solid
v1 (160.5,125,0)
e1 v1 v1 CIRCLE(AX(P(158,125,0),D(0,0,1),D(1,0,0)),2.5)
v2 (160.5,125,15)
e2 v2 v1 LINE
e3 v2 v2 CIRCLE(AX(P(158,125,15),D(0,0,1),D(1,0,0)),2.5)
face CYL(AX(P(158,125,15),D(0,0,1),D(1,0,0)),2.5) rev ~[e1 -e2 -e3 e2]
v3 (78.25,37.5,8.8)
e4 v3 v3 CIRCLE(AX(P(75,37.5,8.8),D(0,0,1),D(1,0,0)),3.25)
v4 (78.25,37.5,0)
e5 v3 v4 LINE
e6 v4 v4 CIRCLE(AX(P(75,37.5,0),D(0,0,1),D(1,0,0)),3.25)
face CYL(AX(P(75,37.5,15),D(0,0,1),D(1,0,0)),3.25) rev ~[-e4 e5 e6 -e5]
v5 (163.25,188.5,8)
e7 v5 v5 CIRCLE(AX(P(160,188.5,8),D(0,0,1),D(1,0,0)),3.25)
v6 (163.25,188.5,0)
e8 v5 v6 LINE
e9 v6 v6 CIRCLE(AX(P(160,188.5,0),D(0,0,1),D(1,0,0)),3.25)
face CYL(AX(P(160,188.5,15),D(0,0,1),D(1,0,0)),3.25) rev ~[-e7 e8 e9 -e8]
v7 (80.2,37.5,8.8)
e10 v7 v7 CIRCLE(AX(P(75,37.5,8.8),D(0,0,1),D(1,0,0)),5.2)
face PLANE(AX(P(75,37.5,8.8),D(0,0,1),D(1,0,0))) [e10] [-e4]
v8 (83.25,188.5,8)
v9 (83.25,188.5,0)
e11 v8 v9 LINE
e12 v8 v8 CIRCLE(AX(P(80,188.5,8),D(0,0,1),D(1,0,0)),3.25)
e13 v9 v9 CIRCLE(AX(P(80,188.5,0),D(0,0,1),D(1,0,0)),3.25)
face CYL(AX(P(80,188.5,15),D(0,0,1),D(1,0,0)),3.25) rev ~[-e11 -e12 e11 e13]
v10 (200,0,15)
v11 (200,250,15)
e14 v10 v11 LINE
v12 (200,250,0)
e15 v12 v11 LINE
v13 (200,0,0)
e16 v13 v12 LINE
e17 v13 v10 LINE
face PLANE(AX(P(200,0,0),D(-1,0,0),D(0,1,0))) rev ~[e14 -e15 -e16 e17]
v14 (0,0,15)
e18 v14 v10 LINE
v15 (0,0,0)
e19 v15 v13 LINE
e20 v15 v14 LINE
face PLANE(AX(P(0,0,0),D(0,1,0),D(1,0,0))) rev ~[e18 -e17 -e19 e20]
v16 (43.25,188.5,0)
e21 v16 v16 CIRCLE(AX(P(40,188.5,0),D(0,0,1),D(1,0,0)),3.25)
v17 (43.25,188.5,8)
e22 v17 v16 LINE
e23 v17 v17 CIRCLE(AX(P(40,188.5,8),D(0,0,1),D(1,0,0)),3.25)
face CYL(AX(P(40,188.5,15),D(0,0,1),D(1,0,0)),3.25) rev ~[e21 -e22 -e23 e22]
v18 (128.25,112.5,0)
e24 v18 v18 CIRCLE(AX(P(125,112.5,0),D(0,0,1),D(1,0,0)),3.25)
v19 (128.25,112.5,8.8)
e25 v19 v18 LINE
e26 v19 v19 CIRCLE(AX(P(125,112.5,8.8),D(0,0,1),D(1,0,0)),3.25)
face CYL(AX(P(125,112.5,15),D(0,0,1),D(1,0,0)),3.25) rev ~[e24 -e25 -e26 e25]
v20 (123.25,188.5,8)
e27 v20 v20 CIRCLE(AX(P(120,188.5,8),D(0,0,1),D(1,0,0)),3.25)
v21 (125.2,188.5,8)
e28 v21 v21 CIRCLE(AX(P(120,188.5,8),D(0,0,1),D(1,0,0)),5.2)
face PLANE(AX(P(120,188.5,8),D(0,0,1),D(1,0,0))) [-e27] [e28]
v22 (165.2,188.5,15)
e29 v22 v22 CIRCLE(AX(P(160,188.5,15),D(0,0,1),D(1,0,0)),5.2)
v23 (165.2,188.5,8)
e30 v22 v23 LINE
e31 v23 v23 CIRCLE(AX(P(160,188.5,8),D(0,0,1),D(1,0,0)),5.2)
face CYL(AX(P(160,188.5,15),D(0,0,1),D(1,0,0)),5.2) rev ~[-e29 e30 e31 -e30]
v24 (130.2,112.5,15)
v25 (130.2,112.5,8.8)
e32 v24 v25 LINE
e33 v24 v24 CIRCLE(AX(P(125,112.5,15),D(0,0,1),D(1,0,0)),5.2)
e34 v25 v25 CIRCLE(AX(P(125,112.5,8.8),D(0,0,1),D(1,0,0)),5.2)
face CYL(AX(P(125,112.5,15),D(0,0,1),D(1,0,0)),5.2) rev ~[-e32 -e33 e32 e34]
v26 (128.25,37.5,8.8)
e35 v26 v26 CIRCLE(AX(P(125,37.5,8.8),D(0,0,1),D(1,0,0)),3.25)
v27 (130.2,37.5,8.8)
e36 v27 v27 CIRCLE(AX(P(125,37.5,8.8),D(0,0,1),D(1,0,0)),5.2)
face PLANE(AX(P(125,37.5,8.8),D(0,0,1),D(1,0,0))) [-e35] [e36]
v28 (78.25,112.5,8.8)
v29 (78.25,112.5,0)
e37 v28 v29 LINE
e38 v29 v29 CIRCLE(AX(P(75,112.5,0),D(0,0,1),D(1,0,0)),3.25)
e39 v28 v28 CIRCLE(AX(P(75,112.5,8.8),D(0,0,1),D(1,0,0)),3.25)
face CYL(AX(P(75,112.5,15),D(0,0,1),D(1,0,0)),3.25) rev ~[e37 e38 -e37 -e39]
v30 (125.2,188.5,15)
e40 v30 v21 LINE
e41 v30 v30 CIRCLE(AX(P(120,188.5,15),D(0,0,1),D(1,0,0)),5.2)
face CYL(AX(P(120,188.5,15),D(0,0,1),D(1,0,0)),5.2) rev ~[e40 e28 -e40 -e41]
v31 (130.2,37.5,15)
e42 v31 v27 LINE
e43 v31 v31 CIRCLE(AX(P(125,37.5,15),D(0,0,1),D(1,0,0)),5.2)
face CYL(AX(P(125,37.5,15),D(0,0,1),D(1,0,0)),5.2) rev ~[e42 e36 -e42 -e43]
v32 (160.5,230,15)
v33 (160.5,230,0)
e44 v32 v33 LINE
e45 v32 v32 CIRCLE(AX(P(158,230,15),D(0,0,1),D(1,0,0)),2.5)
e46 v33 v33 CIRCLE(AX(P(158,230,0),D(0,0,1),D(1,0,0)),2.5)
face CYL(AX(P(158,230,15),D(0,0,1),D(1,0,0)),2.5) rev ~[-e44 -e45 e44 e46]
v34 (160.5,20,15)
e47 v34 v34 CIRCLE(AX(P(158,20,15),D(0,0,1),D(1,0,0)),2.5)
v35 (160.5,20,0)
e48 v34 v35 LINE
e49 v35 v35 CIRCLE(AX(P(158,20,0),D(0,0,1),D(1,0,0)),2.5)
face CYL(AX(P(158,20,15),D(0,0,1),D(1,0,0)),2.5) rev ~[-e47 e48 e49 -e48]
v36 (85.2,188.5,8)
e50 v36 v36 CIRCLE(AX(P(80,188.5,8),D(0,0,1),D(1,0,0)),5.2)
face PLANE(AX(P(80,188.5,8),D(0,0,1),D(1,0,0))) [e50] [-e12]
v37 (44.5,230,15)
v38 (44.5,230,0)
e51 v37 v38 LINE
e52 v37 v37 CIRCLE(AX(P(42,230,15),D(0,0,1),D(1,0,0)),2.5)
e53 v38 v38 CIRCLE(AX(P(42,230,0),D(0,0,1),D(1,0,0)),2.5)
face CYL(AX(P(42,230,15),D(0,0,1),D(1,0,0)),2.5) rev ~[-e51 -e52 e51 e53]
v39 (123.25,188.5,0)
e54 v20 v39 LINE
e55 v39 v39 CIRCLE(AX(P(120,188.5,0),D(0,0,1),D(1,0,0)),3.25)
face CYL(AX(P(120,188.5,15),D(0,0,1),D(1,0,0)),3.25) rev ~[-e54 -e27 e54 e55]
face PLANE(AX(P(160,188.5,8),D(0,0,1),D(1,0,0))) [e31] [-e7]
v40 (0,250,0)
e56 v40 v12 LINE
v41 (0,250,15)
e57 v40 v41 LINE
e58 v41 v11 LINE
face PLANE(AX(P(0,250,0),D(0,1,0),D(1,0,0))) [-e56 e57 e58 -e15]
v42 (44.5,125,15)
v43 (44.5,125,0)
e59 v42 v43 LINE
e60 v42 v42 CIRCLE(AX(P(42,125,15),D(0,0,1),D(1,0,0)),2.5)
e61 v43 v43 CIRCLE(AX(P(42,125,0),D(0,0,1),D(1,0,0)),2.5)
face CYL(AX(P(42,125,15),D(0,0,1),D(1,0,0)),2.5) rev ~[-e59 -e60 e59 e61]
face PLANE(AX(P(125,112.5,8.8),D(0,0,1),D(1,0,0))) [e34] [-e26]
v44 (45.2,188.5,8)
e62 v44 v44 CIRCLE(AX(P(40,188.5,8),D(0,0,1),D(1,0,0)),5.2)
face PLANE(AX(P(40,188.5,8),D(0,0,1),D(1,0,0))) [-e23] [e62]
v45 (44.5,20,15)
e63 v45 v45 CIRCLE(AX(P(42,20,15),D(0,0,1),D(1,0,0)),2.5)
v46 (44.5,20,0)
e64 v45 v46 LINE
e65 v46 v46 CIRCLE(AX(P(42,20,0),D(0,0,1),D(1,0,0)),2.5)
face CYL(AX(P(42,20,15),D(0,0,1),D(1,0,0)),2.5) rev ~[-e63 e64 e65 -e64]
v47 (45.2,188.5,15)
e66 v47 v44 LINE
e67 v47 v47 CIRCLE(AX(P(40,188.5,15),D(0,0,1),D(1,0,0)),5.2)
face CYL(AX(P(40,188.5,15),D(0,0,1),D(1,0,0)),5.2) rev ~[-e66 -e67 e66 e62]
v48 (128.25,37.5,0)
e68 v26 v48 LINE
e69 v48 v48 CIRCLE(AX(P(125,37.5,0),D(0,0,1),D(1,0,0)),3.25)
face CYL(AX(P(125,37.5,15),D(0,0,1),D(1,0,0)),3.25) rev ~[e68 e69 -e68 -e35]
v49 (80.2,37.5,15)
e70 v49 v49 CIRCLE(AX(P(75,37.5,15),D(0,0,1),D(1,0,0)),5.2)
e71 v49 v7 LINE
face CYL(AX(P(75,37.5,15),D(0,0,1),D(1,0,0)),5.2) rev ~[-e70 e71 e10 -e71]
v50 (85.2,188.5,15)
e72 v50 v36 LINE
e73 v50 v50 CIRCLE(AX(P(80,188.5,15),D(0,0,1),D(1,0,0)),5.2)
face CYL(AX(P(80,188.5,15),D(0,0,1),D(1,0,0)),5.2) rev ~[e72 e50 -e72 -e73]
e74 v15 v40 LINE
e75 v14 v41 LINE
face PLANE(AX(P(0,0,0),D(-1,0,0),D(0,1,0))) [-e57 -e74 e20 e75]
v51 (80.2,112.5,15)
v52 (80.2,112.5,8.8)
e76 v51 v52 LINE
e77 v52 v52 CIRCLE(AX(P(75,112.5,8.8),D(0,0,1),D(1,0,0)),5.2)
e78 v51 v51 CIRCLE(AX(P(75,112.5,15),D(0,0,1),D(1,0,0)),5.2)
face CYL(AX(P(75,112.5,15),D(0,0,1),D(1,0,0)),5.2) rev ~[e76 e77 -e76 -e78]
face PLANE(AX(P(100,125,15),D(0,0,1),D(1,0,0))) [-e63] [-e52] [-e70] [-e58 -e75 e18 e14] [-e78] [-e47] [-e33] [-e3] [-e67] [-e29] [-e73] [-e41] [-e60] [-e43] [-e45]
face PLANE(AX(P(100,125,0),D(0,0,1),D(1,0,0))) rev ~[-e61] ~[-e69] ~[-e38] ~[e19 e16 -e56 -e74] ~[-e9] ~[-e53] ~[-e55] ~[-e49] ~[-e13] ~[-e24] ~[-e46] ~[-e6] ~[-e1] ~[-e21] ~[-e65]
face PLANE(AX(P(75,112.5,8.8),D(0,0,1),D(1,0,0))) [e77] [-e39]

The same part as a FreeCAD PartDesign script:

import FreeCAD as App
import Part
import Sketcher

V = App.Vector


def add_polygon(sketch, points):
    """Adds a closed chain of lines whose ends are joined by coincident constraints."""
    first, n = sketch.GeometryCount, len(points)
    for a, b in zip(points, points[1:] + points[:1]):
        sketch.addGeometry(Part.LineSegment(App.Vector(*a, 0), App.Vector(*b, 0)), False)
    for i in range(n):
        sketch.addConstraint(Sketcher.Constraint("Coincident", first + i, 2, first + (i + 1) % n, 1))

doc = App.newDocument("Part")
body = doc.addObject("PartDesign::Body", "Body")

sketch1 = doc.addObject("Sketcher::SketchObject", "Sketch")
body.addObject(sketch1)
sketch1.AttachmentSupport = (doc.XY_Plane, [""])
sketch1.MapMode = "FlatFace"
add_polygon(sketch1, [(0, 250), (0, 0), (200, 0), (200, 250)])
sketch1.addConstraint([
    Sketcher.Constraint("Vertical", 0),
    Sketcher.Constraint("Horizontal", 1),
    Sketcher.Constraint("Vertical", 2),
    Sketcher.Constraint("Horizontal", 3),
    Sketcher.Constraint("Coincident", 0, 2, -1, 1),
    Sketcher.Constraint("DistanceX", 1, 1, 1, 2, 200.0),
    Sketcher.Constraint("DistanceY", 0, 2, 0, 1, 250.0),
])
pad1 = doc.addObject("PartDesign::Pad", "Pad")
body.addObject(pad1)
pad1.Profile = sketch1
pad1.Length = 15

sketch2 = doc.addObject("Sketcher::SketchObject", "Sketch001")
body.addObject(sketch2)
sketch2.AttachmentSupport = (doc.XY_Plane, [""])
sketch2.MapMode = "FlatFace"
sketch2.AttachmentOffset = App.Placement(V(0, 0, 15), App.Rotation())
sketch2.addGeometry([
    Part.Circle(V(125, 37.5, 0), V(0, 0, 1), 3.2),
    Part.Circle(V(75, 37.5, 0), V(0, 0, 1), 3.2),
    Part.Circle(V(125, 112.5, 0), V(0, 0, 1), 3.2),
    Part.Circle(V(75, 112.5, 0), V(0, 0, 1), 3.2),
], False)
sketch2.addConstraint([
    Sketcher.Constraint("Equal", 0, 1),
    Sketcher.Constraint("Equal", 1, 2),
    Sketcher.Constraint("Equal", 2, 3),
    Sketcher.Constraint("Horizontal", 0, 3, 1, 3),
    Sketcher.Constraint("Horizontal", 2, 3, 3, 3),
    Sketcher.Constraint("Vertical", 0, 3, 2, 3),
    Sketcher.Constraint("Vertical", 1, 3, 3, 3),
    Sketcher.Constraint("Diameter", 0, 6.5),
    Sketcher.Constraint("DistanceX", -1, 1, 0, 3, 125.0),
    Sketcher.Constraint("DistanceX", -1, 1, 1, 3, 75.0),
    Sketcher.Constraint("DistanceY", 0, 3, 2, 3, 75.0),
    Sketcher.Constraint("DistanceY", -1, 1, 0, 3, 37.5),
])
pocket1 = doc.addObject("PartDesign::Pocket", "Pocket")
body.addObject(pocket1)
pocket1.Profile = sketch2
pocket1.Length = 15

sketch3 = doc.addObject("Sketcher::SketchObject", "Sketch002")
body.addObject(sketch3)
sketch3.AttachmentSupport = (doc.XY_Plane, [""])
sketch3.MapMode = "FlatFace"
sketch3.AttachmentOffset = App.Placement(V(0, 0, 15), App.Rotation())
sketch3.addGeometry([
    Part.Circle(V(75, 112, 0), V(0, 0, 1), 5),
    Part.Circle(V(125, 112, 0), V(0, 0, 1), 5),
    Part.Circle(V(75, 38, 0), V(0, 0, 1), 5),
    Part.Circle(V(125, 38, 0), V(0, 0, 1), 5),
], False)
sketch3.addConstraint([
    Sketcher.Constraint("Equal", 0, 1),
    Sketcher.Constraint("Equal", 1, 2),
    Sketcher.Constraint("Equal", 2, 3),
    Sketcher.Constraint("Horizontal", 0, 3, 1, 3),
    Sketcher.Constraint("Horizontal", 2, 3, 3, 3),
    Sketcher.Constraint("Vertical", 0, 3, 2, 3),
    Sketcher.Constraint("Vertical", 1, 3, 3, 3),
    Sketcher.Constraint("Diameter", 0, 10.4),
    Sketcher.Constraint("DistanceX", -1, 1, 0, 3, 75.0),
    Sketcher.Constraint("DistanceX", -1, 1, 1, 3, 125.0),
    Sketcher.Constraint("DistanceY", 2, 3, 0, 3, 75.0),
    Sketcher.Constraint("DistanceY", -1, 1, 0, 3, 112.5),
])
pocket2 = doc.addObject("PartDesign::Pocket", "Pocket001")
body.addObject(pocket2)
pocket2.Profile = sketch3
pocket2.Length = 6.2

sketch4 = doc.addObject("Sketcher::SketchObject", "Sketch003")
body.addObject(sketch4)
sketch4.AttachmentSupport = (doc.XY_Plane, [""])
sketch4.MapMode = "FlatFace"
sketch4.AttachmentOffset = App.Placement(V(0, 0, 15), App.Rotation())
sketch4.addGeometry([
    Part.Circle(V(42, 230, 0), V(0, 0, 1), 2.5),
    Part.Circle(V(42, 125, 0), V(0, 0, 1), 2.5),
    Part.Circle(V(42, 20, 0), V(0, 0, 1), 2.5),
    Part.Circle(V(158, 230, 0), V(0, 0, 1), 2.5),
    Part.Circle(V(158, 125, 0), V(0, 0, 1), 2.5),
    Part.Circle(V(158, 20, 0), V(0, 0, 1), 2.5),
], False)
sketch4.addConstraint([
    Sketcher.Constraint("Equal", 0, 1),
    Sketcher.Constraint("Equal", 1, 2),
    Sketcher.Constraint("Equal", 2, 3),
    Sketcher.Constraint("Equal", 3, 4),
    Sketcher.Constraint("Equal", 4, 5),
    Sketcher.Constraint("Horizontal", 0, 3, 3, 3),
    Sketcher.Constraint("Horizontal", 1, 3, 4, 3),
    Sketcher.Constraint("Horizontal", 2, 3, 5, 3),
    Sketcher.Constraint("Vertical", 0, 3, 1, 3),
    Sketcher.Constraint("Vertical", 1, 3, 2, 3),
    Sketcher.Constraint("Vertical", 3, 3, 4, 3),
    Sketcher.Constraint("Vertical", 4, 3, 5, 3),
    Sketcher.Constraint("Diameter", 0, 5.0),
    Sketcher.Constraint("DistanceX", -1, 1, 0, 3, 42.0),
    Sketcher.Constraint("DistanceY", -1, 1, 0, 3, 230.0),
    Sketcher.Constraint("DistanceY", -1, 1, 1, 3, 125.0),
    Sketcher.Constraint("DistanceY", -1, 1, 2, 3, 20.0),
    Sketcher.Constraint("DistanceX", -1, 1, 3, 3, 158.0),
])
pocket3 = doc.addObject("PartDesign::Pocket", "Pocket002")
body.addObject(pocket3)
pocket3.Profile = sketch4
pocket3.Length = 15

sketch5 = doc.addObject("Sketcher::SketchObject", "Sketch004")
body.addObject(sketch5)
sketch5.AttachmentSupport = (doc.XY_Plane, [""])
sketch5.MapMode = "FlatFace"
sketch5.AttachmentOffset = App.Placement(V(0, 0, 15), App.Rotation())
sketch5.addGeometry([
    Part.Circle(V(40, 188.5, 0), V(0, 0, 1), 3.2),
    Part.Circle(V(80, 188.5, 0), V(0, 0, 1), 3.2),
    Part.Circle(V(120, 188.5, 0), V(0, 0, 1), 3.2),
    Part.Circle(V(160, 188.5, 0), V(0, 0, 1), 3.2),
], False)
sketch5.addConstraint([
    Sketcher.Constraint("Equal", 0, 1),
    Sketcher.Constraint("Equal", 1, 2),
    Sketcher.Constraint("Equal", 2, 3),
    Sketcher.Constraint("Horizontal", 0, 3, 1, 3),
    Sketcher.Constraint("Horizontal", 1, 3, 2, 3),
    Sketcher.Constraint("Horizontal", 2, 3, 3, 3),
    Sketcher.Constraint("Diameter", 0, 6.5),
    Sketcher.Constraint("DistanceX", -1, 1, 0, 3, 40.0),
    Sketcher.Constraint("DistanceX", -1, 1, 1, 3, 80.0),
    Sketcher.Constraint("DistanceX", -1, 1, 2, 3, 120.0),
    Sketcher.Constraint("DistanceX", -1, 1, 3, 3, 160.0),
    Sketcher.Constraint("DistanceY", -1, 1, 0, 3, 188.5),
])
pocket4 = doc.addObject("PartDesign::Pocket", "Pocket003")
body.addObject(pocket4)
pocket4.Profile = sketch5
pocket4.Length = 15

sketch6 = doc.addObject("Sketcher::SketchObject", "Sketch005")
body.addObject(sketch6)
sketch6.AttachmentSupport = (doc.XY_Plane, [""])
sketch6.MapMode = "FlatFace"
sketch6.AttachmentOffset = App.Placement(V(0, 0, 15), App.Rotation())
sketch6.addGeometry([
    Part.Circle(V(40, 188, 0), V(0, 0, 1), 5),
    Part.Circle(V(80, 188, 0), V(0, 0, 1), 5),
    Part.Circle(V(120, 188, 0), V(0, 0, 1), 5),
    Part.Circle(V(160, 188, 0), V(0, 0, 1), 5),
], False)
sketch6.addConstraint([
    Sketcher.Constraint("Equal", 0, 1),
    Sketcher.Constraint("Equal", 1, 2),
    Sketcher.Constraint("Equal", 2, 3),
    Sketcher.Constraint("Horizontal", 0, 3, 1, 3),
    Sketcher.Constraint("Horizontal", 1, 3, 2, 3),
    Sketcher.Constraint("Horizontal", 2, 3, 3, 3),
    Sketcher.Constraint("Diameter", 0, 10.4),
    Sketcher.Constraint("DistanceX", -1, 1, 0, 3, 40.0),
    Sketcher.Constraint("DistanceX", -1, 1, 1, 3, 80.0),
    Sketcher.Constraint("DistanceX", -1, 1, 2, 3, 120.0),
    Sketcher.Constraint("DistanceX", -1, 1, 3, 3, 160.0),
    Sketcher.Constraint("DistanceY", -1, 1, 0, 3, 188.5),
])
pocket5 = doc.addObject("PartDesign::Pocket", "Pocket004")
body.addObject(pocket5)
pocket5.Profile = sketch6
pocket5.Length = 7

doc.recompute()
